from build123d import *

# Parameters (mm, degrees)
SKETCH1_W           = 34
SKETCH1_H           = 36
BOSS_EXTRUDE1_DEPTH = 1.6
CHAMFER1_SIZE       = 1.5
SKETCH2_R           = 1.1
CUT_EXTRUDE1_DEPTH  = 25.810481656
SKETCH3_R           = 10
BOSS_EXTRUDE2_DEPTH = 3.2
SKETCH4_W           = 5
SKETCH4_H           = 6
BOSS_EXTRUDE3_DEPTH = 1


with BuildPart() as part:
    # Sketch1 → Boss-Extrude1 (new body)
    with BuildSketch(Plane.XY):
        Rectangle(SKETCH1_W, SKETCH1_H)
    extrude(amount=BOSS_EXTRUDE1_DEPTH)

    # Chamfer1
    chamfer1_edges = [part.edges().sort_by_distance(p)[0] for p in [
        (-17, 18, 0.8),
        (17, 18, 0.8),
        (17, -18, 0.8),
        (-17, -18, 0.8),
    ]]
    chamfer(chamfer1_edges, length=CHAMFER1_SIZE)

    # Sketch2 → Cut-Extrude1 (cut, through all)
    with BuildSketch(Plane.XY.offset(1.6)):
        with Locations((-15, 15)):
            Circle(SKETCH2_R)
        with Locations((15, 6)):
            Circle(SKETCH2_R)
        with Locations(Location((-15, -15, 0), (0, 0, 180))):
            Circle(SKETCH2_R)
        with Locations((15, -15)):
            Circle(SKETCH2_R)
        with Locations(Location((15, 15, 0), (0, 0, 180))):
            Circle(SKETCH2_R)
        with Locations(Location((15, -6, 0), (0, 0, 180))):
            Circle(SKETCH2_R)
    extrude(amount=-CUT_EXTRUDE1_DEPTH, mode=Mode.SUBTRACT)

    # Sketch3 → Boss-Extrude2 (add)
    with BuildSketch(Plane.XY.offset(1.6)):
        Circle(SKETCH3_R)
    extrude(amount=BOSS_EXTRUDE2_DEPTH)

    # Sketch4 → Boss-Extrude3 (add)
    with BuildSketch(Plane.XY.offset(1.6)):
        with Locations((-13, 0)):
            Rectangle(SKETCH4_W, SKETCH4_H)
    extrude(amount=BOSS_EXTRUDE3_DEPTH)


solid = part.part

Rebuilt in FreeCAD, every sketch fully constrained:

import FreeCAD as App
import Part
import Sketcher
from FreeCAD import Vector


def edges_at(feature, points):
    """Names of the edges that pass closest to the given points."""
    edges = feature.Shape.Edges
    near = lambda p: min(range(len(edges)), key=lambda i: edges[i].distToShape(Part.Vertex(*p))[0])
    return sorted({f"Edge{near(p) + 1}" for p in points})

doc = App.newDocument("Part")
params = doc.addObject("Spreadsheet::Sheet", "Params")
for row, (alias, value) in enumerate([
    ("sketch1_width", "34 mm"),
    ("sketch1_height", "36 mm"),
    ("pad1_length", "1.6 mm"),
    ("chamfer_size", "1.5 mm"),
    ("sketch2_diameter", "2.2 mm"),
    ("sketch3_diameter", "20 mm"),
    ("pad2_length", "3.2 mm"),
    ("sketch4_width", "5 mm"),
    ("sketch4_height", "6 mm"),
    ("pad3_length", "1 mm"),
], start=1):
    params.set(f"A{row}", alias)
    params.set(f"B{row}", "=" + value)
    params.setAlias(f"B{row}", alias)

body = doc.addObject("PartDesign::Body", "Body")

# Sketch on XY plane
sketch1 = body.newObject("Sketcher::SketchObject", "Sketch")
sketch1.AttachmentSupport = (doc.getObject("XY_Plane"), [""])
sketch1.MapMode = "FlatFace"
sketch1.addGeometry([
    Part.LineSegment(Vector(-17, 18, 0), Vector(-17, -18, 0)),
    Part.LineSegment(Vector(-17, -18, 0), Vector(17, -18, 0)),
    Part.LineSegment(Vector(17, -18, 0), Vector(17, 18, 0)),
    Part.LineSegment(Vector(17, 18, 0), Vector(-17, 18, 0)),
], False)
sketch1.addConstraint([
    Sketcher.Constraint("Coincident", 0, 2, 1, 1),
    Sketcher.Constraint("Coincident", 1, 2, 2, 1),
    Sketcher.Constraint("Coincident", 2, 2, 3, 1),
    Sketcher.Constraint("Coincident", 3, 2, 0, 1),
    Sketcher.Constraint("Vertical", 0),
    Sketcher.Constraint("Horizontal", 1),
    Sketcher.Constraint("Vertical", 2),
    Sketcher.Constraint("Horizontal", 3),
    Sketcher.Constraint("Symmetric", 0, 2, 2, 2, -1, 1),
    Sketcher.Constraint("DistanceX", 1, 1, 1, 2, 34.0),
    Sketcher.Constraint("DistanceY", 0, 2, 0, 1, 36.0),
])
sketch1.setExpression("Constraints[9]", "Params.sketch1_width")
sketch1.setExpression("Constraints[10]", "Params.sketch1_height")
pad1 = body.newObject("PartDesign::Pad", "Pad")
pad1.Profile = sketch1
pad1.setExpression("Length", "Params.pad1_length")
doc.recompute()

chamfer = body.newObject("PartDesign::Chamfer", "Chamfer")
chamfer.Base = (pad1, edges_at(pad1, [
    (-17, 18, 0.8),
    (17, 18, 0.8),
    (17, -18, 0.8),
    (-17, -18, 0.8),
]))
chamfer.setExpression("Size", "Params.chamfer_size")

# Sketch on XY plane
sketch2 = body.newObject("Sketcher::SketchObject", "Sketch001")
sketch2.AttachmentSupport = (doc.getObject("XY_Plane"), [""])
sketch2.MapMode = "FlatFace"
sketch2.AttachmentOffset = App.Placement(Vector(0, 0, 1.6), App.Rotation())
sketch2.addGeometry([
    Part.Circle(Vector(-15, 15, 0), Vector(0, 0, 1), 1.1),  # 0
    Part.Circle(Vector(15, 6, 0), Vector(0, 0, 1), 1.1),  # 1
    Part.Circle(Vector(-15, -15, 0), Vector(0, 0, 1), 1.1),  # 2
    Part.Circle(Vector(15, -15, 0), Vector(0, 0, 1), 1.1),  # 3
    Part.Circle(Vector(15, 15, 0), Vector(0, 0, 1), 1.1),  # 4
    Part.Circle(Vector(15, -6, 0), Vector(0, 0, 1), 1.1),  # 5
], False)
sketch2.addConstraint([
    Sketcher.Constraint("Equal", 0, 1),
    Sketcher.Constraint("Equal", 1, 2),
    Sketcher.Constraint("Equal", 2, 3),
    Sketcher.Constraint("Equal", 3, 4),
    Sketcher.Constraint("Equal", 4, 5),
    Sketcher.Constraint("Symmetric", 0, 3, 3, 3, -1, 1),
    Sketcher.Constraint("Symmetric", 2, 3, 4, 3, -1, 1),
    Sketcher.Constraint("Symmetric", 2, 3, 3, 3, -2),
    Sketcher.Constraint("Symmetric", 1, 3, 5, 3, -1),
    Sketcher.Constraint("Vertical", 1, 3, 3, 3),
    Sketcher.Constraint("Diameter", 0, 2.2),
    Sketcher.Constraint("DistanceX", 0, 3, -1, 1, 15.0),
    Sketcher.Constraint("DistanceY", -1, 1, 0, 3, 15.0),
    Sketcher.Constraint("DistanceY", -1, 1, 1, 3, 6.0),
])
sketch2.setExpression("Constraints[10]", "Params.sketch2_diameter")
pocket1 = body.newObject("PartDesign::Pocket", "Pocket")
pocket1.Profile = sketch2
pocket1.Type = "ThroughAll"

# Sketch on XY plane
sketch3 = body.newObject("Sketcher::SketchObject", "Sketch002")
sketch3.AttachmentSupport = (doc.getObject("XY_Plane"), [""])
sketch3.MapMode = "FlatFace"
sketch3.AttachmentOffset = App.Placement(Vector(0, 0, 1.6), App.Rotation())
sketch3.addGeometry(Part.Circle(Vector(0, 0, 0), Vector(0, 0, 1), 10), False)
sketch3.addConstraint([
    Sketcher.Constraint("Coincident", 0, 3, -1, 1),
    Sketcher.Constraint("Diameter", 0, 20.0),
])
sketch3.setExpression("Constraints[1]", "Params.sketch3_diameter")
pad2 = body.newObject("PartDesign::Pad", "Pad001")
pad2.Profile = sketch3
pad2.setExpression("Length", "Params.pad2_length")

# Sketch on XY plane
sketch4 = body.newObject("Sketcher::SketchObject", "Sketch003")
sketch4.AttachmentSupport = (doc.getObject("XY_Plane"), [""])
sketch4.MapMode = "FlatFace"
sketch4.AttachmentOffset = App.Placement(Vector(0, 0, 1.6), App.Rotation())
sketch4.addGeometry([
    Part.LineSegment(Vector(-15.5, 3, 0), Vector(-15.5, -3, 0)),
    Part.LineSegment(Vector(-15.5, -3, 0), Vector(-10.5, -3, 0)),
    Part.LineSegment(Vector(-10.5, -3, 0), Vector(-10.5, 3, 0)),
    Part.LineSegment(Vector(-10.5, 3, 0), Vector(-15.5, 3, 0)),
], False)
sketch4.addConstraint([
    Sketcher.Constraint("Coincident", 0, 2, 1, 1),
    Sketcher.Constraint("Coincident", 1, 2, 2, 1),
    Sketcher.Constraint("Coincident", 2, 2, 3, 1),
    Sketcher.Constraint("Coincident", 3, 2, 0, 1),
    Sketcher.Constraint("Vertical", 0),
    Sketcher.Constraint("Horizontal", 1),
    Sketcher.Constraint("Vertical", 2),
    Sketcher.Constraint("Horizontal", 3),
    Sketcher.Constraint("DistanceX", 1, 1, 1, 2, 5.0),
    Sketcher.Constraint("DistanceY", 0, 2, 0, 1, 6.0),
    Sketcher.Constraint("DistanceY", 0, 2, -1, 1, 3.0),
    Sketcher.Constraint("DistanceX", 0, 2, -1, 1, 15.5),
])
sketch4.setExpression("Constraints[8]", "Params.sketch4_width")
sketch4.setExpression("Constraints[9]", "Params.sketch4_height")
pad3 = body.newObject("PartDesign::Pad", "Pad002")
pad3.Profile = sketch4
pad3.setExpression("Length", "Params.pad3_length")

doc.recompute()
